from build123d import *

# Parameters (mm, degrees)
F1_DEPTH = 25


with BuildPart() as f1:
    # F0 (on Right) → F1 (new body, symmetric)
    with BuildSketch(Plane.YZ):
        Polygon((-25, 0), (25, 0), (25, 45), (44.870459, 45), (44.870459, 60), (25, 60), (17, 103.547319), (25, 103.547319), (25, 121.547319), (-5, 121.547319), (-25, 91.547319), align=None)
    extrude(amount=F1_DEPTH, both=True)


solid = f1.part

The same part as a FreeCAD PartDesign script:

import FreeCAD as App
import Part
import Sketcher
from FreeCAD import Vector


def add_polygon(sketch, points):
    """Adds a closed chain of lines whose ends are joined by coincident constraints."""
    first, n = sketch.GeometryCount, len(points)
    for a, b in zip(points, points[1:] + points[:1]):
        sketch.addGeometry(Part.LineSegment(App.Vector(*a, 0), App.Vector(*b, 0)), False)
    for i in range(n):
        sketch.addConstraint(Sketcher.Constraint("Coincident", first + i, 2, first + (i + 1) % n, 1))

doc = App.newDocument("Part")
body = doc.addObject("PartDesign::Body", "Body")

sketch1 = body.newObject("Sketcher::SketchObject", "Sketch")
sketch1.AttachmentSupport = (doc.getObject("YZ_Plane"), [""])
sketch1.MapMode = "FlatFace"
add_polygon(sketch1, [(-25, 0), (25, 0), (25, 45), (45, 45), (45, 60), (25, 60), (17, 104), (25, 104), (25, 122), (-5, 122), (-25, 92)])
sketch1.addConstraint(Sketcher.Constraint("Horizontal", 0))
sketch1.addConstraint(Sketcher.Constraint("Vertical", 1))
sketch1.addConstraint(Sketcher.Constraint("Horizontal", 2))
sketch1.addConstraint(Sketcher.Constraint("Vertical", 3))
sketch1.addConstraint(Sketcher.Constraint("Horizontal", 4))
sketch1.addConstraint(Sketcher.Constraint("Horizontal", 6))
sketch1.addConstraint(Sketcher.Constraint("Vertical", 7))
sketch1.addConstraint(Sketcher.Constraint("Horizontal", 8))
sketch1.addConstraint(Sketcher.Constraint("Vertical", 10))
sketch1.addConstraint(Sketcher.Constraint("Symmetric", 0, 2, 10, 2, -1, 1))
sketch1.addConstraint(Sketcher.Constraint("Vertical", 1, 2, 4, 2))
sketch1.addConstraint(Sketcher.Constraint("Vertical", 4, 2, 6, 2))
sketch1.addConstraint(Sketcher.Constraint("DistanceX", 0, 1, 0, 2, 50.0))
sketch1.addConstraint(Sketcher.Constraint("DistanceX", 6, 1, 6, 2, 8.0))
sketch1.addConstraint(Sketcher.Constraint("DistanceX", 8, 2, 8, 1, 30.0))
sketch1.addConstraint(Sketcher.Constraint("DistanceY", 1, 1, 1, 2, 45.0))
sketch1.addConstraint(Sketcher.Constraint("DistanceY", 3, 1, 3, 2, 15.0))
sketch1.addConstraint(Sketcher.Constraint("DistanceY", 7, 1, 7, 2, 18.0))
sketch1.addConstraint(Sketcher.Constraint("DistanceY", 9, 2, 8, 2, 30.0))
sketch1.addConstraint(Sketcher.Constraint("DistanceX", 2, 1, 2, 2, 19.870459))
sketch1.addConstraint(Sketcher.Constraint("DistanceY", 10, 2, 10, 1, 91.547319))
pad1 = body.newObject("PartDesign::Pad", "Pad")
pad1.Profile = sketch1
pad1.Length = 50
pad1.Midplane = True

doc.recompute()
